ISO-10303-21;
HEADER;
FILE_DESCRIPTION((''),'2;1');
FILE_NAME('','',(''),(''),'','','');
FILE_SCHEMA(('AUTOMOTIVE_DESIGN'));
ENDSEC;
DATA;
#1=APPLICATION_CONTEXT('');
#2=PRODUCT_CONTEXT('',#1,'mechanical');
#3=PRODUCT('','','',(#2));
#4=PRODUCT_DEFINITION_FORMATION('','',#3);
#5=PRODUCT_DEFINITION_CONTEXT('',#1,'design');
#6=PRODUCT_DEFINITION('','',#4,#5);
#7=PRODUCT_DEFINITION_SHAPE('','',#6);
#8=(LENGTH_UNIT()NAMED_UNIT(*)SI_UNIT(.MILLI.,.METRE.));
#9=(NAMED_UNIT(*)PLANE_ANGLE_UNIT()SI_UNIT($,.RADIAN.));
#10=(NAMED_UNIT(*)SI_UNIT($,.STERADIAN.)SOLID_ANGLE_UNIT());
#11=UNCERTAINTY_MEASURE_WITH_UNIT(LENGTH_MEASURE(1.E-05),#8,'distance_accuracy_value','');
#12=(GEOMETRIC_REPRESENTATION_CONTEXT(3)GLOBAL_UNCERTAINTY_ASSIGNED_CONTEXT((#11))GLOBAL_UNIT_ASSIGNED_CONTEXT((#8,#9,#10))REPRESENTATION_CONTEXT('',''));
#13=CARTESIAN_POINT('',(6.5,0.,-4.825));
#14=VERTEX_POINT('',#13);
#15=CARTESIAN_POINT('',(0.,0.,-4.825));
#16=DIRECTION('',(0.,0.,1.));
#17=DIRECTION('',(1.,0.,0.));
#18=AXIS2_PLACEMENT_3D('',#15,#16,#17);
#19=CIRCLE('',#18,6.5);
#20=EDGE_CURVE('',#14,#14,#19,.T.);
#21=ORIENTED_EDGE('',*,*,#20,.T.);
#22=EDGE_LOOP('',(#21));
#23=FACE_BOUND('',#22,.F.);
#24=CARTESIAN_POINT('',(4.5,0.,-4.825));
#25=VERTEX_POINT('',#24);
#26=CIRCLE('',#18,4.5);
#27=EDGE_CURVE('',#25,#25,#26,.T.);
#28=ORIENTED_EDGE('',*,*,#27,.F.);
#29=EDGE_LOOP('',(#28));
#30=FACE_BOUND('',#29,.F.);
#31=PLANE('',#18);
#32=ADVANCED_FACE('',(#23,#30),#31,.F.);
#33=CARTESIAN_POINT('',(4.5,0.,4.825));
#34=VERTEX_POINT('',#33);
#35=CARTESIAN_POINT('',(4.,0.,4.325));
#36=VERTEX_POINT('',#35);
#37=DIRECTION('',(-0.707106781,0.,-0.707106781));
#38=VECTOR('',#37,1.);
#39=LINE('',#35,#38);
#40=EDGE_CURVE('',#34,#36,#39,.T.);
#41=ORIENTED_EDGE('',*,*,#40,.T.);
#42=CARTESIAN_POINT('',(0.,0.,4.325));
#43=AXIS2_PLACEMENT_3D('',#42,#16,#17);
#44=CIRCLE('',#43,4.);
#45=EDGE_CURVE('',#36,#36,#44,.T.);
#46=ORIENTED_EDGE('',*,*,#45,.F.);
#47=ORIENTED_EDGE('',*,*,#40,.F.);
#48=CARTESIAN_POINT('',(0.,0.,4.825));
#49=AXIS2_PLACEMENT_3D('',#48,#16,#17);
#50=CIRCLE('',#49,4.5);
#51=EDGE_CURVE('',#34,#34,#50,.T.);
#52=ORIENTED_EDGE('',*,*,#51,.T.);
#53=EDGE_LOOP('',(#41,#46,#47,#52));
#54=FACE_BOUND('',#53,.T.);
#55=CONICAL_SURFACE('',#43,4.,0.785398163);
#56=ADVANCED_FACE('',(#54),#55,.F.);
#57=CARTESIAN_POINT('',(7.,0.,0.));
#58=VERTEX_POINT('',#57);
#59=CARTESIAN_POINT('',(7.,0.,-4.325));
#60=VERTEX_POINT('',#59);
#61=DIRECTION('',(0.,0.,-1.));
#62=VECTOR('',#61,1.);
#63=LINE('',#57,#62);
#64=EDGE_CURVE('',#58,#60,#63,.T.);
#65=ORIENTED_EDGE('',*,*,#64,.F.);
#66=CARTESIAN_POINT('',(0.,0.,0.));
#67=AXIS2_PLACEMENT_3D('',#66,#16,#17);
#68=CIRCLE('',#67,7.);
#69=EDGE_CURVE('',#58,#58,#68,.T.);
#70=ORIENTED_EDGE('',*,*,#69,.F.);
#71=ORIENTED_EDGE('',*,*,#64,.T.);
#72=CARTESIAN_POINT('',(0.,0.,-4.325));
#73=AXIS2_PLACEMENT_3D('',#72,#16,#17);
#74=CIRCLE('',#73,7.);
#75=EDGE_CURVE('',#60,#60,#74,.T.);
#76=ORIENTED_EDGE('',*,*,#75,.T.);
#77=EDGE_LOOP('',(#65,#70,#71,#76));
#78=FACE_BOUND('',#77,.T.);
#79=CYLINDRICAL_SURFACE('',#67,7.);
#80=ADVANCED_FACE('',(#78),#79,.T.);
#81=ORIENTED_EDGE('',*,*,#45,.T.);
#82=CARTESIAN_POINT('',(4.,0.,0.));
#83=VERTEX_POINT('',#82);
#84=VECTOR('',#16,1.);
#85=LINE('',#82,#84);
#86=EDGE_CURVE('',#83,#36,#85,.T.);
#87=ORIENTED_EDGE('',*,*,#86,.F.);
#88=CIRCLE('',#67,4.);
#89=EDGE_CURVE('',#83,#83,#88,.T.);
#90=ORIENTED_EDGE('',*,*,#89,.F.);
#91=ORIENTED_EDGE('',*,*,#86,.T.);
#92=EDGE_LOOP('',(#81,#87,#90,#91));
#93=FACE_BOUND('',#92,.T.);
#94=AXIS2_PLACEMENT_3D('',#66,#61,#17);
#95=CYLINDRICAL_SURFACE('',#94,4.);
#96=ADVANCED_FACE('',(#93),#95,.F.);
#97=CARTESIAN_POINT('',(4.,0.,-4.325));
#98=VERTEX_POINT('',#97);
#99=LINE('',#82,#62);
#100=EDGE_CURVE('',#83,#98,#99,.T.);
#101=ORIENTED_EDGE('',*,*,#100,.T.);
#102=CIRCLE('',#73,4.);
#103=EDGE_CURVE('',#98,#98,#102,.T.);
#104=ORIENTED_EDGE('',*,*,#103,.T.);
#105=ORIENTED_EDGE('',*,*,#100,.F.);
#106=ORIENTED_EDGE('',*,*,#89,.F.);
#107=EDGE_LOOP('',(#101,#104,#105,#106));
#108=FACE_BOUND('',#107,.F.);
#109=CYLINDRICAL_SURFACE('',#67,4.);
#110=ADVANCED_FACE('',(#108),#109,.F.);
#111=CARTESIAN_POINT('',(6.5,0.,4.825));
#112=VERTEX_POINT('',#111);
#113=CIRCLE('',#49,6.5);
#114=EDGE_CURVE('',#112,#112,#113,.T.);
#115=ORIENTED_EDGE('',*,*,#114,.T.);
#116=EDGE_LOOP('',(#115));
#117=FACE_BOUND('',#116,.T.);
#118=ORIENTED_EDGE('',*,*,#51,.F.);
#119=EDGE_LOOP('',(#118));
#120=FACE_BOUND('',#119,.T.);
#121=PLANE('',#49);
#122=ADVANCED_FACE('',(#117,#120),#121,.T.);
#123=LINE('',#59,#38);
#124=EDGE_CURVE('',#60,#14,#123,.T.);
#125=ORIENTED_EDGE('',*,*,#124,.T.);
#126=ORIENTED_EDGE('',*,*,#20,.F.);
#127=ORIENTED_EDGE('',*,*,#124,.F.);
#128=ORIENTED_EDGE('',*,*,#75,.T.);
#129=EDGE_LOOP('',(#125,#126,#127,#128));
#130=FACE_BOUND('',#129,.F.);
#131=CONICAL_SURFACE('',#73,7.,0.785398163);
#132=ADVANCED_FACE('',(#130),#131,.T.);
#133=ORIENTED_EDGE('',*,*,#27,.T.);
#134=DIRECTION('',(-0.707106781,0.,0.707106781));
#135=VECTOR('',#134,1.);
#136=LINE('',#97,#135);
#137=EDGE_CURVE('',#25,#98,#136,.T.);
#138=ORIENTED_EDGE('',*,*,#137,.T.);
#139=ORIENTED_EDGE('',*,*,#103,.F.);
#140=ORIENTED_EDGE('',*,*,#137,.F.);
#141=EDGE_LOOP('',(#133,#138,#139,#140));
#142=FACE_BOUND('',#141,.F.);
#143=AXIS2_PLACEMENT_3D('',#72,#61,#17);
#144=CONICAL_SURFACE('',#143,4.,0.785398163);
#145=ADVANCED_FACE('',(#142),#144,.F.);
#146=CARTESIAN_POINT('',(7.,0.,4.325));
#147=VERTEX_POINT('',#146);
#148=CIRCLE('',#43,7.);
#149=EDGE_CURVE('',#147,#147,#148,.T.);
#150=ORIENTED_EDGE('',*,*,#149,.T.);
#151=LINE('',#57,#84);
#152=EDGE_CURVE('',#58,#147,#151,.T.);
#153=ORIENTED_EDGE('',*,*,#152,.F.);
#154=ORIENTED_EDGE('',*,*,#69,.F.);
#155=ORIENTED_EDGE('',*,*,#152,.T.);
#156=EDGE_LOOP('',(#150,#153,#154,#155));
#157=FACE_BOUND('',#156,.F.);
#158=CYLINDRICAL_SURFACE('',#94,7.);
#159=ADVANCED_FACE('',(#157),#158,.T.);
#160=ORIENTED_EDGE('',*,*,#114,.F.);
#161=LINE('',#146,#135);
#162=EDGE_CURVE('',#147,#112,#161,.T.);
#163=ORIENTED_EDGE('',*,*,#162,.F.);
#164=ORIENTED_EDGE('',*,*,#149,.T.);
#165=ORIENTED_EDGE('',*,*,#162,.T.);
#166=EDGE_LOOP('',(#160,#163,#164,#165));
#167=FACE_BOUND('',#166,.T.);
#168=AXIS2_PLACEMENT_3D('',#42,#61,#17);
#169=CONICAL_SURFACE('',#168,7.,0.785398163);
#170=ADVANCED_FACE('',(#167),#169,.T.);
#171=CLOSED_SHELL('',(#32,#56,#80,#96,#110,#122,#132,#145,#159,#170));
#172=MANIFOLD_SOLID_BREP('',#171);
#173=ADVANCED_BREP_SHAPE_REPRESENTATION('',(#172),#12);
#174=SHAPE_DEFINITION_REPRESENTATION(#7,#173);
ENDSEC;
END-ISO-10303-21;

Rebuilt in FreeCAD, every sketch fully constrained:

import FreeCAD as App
import Part
import Sketcher
Q = App.Units.Quantity


def edges_at(feature, points):
    """Names of the edges that pass closest to the given points."""
    edges = feature.Shape.Edges
    near = lambda p: min(range(len(edges)), key=lambda i: edges[i].distToShape(Part.Vertex(*p))[0])
    return sorted({f"Edge{near(p) + 1}" for p in points})

doc = App.newDocument("Part")
body = doc.addObject("PartDesign::Body", "Body")

sketch1 = doc.addObject("Sketcher::SketchObject", "Sketch")
body.addObject(sketch1)
sketch1.AttachmentSupport = (doc.XY_Plane, [""])
sketch1.MapMode = "FlatFace"
sketch1.addGeometry([
    Part.Circle(App.Vector(0, 0, 0), App.Vector(0, 0, 1), 7),
    Part.Circle(App.Vector(0, 0, 0), App.Vector(0, 0, 1), 4),
], False)
sketch1.addConstraint([
    Sketcher.Constraint("Coincident", 0, 3, -1, 1),
    Sketcher.Constraint("Coincident", 1, 3, -1, 1),
    Sketcher.Constraint("Diameter", 0, Q("14 mm")),
    Sketcher.Constraint("Diameter", 1, Q("8 mm")),
])
pad1 = doc.addObject("PartDesign::Pad", "Pad")
body.addObject(pad1)
pad1.Profile = sketch1
pad1.Length = 9.65
pad1.Midplane = True
doc.recompute()

chamfer = doc.addObject("PartDesign::Chamfer", "Chamfer")
body.addObject(chamfer)
chamfer.Base = (pad1, edges_at(pad1, [
    (-7, 0, 4.825),
    (-4, 0, 4.825),
    (-7, 0, -4.825),
    (-4, 0, -4.825),
]))
chamfer.Size = 0.5

doc.recompute()
